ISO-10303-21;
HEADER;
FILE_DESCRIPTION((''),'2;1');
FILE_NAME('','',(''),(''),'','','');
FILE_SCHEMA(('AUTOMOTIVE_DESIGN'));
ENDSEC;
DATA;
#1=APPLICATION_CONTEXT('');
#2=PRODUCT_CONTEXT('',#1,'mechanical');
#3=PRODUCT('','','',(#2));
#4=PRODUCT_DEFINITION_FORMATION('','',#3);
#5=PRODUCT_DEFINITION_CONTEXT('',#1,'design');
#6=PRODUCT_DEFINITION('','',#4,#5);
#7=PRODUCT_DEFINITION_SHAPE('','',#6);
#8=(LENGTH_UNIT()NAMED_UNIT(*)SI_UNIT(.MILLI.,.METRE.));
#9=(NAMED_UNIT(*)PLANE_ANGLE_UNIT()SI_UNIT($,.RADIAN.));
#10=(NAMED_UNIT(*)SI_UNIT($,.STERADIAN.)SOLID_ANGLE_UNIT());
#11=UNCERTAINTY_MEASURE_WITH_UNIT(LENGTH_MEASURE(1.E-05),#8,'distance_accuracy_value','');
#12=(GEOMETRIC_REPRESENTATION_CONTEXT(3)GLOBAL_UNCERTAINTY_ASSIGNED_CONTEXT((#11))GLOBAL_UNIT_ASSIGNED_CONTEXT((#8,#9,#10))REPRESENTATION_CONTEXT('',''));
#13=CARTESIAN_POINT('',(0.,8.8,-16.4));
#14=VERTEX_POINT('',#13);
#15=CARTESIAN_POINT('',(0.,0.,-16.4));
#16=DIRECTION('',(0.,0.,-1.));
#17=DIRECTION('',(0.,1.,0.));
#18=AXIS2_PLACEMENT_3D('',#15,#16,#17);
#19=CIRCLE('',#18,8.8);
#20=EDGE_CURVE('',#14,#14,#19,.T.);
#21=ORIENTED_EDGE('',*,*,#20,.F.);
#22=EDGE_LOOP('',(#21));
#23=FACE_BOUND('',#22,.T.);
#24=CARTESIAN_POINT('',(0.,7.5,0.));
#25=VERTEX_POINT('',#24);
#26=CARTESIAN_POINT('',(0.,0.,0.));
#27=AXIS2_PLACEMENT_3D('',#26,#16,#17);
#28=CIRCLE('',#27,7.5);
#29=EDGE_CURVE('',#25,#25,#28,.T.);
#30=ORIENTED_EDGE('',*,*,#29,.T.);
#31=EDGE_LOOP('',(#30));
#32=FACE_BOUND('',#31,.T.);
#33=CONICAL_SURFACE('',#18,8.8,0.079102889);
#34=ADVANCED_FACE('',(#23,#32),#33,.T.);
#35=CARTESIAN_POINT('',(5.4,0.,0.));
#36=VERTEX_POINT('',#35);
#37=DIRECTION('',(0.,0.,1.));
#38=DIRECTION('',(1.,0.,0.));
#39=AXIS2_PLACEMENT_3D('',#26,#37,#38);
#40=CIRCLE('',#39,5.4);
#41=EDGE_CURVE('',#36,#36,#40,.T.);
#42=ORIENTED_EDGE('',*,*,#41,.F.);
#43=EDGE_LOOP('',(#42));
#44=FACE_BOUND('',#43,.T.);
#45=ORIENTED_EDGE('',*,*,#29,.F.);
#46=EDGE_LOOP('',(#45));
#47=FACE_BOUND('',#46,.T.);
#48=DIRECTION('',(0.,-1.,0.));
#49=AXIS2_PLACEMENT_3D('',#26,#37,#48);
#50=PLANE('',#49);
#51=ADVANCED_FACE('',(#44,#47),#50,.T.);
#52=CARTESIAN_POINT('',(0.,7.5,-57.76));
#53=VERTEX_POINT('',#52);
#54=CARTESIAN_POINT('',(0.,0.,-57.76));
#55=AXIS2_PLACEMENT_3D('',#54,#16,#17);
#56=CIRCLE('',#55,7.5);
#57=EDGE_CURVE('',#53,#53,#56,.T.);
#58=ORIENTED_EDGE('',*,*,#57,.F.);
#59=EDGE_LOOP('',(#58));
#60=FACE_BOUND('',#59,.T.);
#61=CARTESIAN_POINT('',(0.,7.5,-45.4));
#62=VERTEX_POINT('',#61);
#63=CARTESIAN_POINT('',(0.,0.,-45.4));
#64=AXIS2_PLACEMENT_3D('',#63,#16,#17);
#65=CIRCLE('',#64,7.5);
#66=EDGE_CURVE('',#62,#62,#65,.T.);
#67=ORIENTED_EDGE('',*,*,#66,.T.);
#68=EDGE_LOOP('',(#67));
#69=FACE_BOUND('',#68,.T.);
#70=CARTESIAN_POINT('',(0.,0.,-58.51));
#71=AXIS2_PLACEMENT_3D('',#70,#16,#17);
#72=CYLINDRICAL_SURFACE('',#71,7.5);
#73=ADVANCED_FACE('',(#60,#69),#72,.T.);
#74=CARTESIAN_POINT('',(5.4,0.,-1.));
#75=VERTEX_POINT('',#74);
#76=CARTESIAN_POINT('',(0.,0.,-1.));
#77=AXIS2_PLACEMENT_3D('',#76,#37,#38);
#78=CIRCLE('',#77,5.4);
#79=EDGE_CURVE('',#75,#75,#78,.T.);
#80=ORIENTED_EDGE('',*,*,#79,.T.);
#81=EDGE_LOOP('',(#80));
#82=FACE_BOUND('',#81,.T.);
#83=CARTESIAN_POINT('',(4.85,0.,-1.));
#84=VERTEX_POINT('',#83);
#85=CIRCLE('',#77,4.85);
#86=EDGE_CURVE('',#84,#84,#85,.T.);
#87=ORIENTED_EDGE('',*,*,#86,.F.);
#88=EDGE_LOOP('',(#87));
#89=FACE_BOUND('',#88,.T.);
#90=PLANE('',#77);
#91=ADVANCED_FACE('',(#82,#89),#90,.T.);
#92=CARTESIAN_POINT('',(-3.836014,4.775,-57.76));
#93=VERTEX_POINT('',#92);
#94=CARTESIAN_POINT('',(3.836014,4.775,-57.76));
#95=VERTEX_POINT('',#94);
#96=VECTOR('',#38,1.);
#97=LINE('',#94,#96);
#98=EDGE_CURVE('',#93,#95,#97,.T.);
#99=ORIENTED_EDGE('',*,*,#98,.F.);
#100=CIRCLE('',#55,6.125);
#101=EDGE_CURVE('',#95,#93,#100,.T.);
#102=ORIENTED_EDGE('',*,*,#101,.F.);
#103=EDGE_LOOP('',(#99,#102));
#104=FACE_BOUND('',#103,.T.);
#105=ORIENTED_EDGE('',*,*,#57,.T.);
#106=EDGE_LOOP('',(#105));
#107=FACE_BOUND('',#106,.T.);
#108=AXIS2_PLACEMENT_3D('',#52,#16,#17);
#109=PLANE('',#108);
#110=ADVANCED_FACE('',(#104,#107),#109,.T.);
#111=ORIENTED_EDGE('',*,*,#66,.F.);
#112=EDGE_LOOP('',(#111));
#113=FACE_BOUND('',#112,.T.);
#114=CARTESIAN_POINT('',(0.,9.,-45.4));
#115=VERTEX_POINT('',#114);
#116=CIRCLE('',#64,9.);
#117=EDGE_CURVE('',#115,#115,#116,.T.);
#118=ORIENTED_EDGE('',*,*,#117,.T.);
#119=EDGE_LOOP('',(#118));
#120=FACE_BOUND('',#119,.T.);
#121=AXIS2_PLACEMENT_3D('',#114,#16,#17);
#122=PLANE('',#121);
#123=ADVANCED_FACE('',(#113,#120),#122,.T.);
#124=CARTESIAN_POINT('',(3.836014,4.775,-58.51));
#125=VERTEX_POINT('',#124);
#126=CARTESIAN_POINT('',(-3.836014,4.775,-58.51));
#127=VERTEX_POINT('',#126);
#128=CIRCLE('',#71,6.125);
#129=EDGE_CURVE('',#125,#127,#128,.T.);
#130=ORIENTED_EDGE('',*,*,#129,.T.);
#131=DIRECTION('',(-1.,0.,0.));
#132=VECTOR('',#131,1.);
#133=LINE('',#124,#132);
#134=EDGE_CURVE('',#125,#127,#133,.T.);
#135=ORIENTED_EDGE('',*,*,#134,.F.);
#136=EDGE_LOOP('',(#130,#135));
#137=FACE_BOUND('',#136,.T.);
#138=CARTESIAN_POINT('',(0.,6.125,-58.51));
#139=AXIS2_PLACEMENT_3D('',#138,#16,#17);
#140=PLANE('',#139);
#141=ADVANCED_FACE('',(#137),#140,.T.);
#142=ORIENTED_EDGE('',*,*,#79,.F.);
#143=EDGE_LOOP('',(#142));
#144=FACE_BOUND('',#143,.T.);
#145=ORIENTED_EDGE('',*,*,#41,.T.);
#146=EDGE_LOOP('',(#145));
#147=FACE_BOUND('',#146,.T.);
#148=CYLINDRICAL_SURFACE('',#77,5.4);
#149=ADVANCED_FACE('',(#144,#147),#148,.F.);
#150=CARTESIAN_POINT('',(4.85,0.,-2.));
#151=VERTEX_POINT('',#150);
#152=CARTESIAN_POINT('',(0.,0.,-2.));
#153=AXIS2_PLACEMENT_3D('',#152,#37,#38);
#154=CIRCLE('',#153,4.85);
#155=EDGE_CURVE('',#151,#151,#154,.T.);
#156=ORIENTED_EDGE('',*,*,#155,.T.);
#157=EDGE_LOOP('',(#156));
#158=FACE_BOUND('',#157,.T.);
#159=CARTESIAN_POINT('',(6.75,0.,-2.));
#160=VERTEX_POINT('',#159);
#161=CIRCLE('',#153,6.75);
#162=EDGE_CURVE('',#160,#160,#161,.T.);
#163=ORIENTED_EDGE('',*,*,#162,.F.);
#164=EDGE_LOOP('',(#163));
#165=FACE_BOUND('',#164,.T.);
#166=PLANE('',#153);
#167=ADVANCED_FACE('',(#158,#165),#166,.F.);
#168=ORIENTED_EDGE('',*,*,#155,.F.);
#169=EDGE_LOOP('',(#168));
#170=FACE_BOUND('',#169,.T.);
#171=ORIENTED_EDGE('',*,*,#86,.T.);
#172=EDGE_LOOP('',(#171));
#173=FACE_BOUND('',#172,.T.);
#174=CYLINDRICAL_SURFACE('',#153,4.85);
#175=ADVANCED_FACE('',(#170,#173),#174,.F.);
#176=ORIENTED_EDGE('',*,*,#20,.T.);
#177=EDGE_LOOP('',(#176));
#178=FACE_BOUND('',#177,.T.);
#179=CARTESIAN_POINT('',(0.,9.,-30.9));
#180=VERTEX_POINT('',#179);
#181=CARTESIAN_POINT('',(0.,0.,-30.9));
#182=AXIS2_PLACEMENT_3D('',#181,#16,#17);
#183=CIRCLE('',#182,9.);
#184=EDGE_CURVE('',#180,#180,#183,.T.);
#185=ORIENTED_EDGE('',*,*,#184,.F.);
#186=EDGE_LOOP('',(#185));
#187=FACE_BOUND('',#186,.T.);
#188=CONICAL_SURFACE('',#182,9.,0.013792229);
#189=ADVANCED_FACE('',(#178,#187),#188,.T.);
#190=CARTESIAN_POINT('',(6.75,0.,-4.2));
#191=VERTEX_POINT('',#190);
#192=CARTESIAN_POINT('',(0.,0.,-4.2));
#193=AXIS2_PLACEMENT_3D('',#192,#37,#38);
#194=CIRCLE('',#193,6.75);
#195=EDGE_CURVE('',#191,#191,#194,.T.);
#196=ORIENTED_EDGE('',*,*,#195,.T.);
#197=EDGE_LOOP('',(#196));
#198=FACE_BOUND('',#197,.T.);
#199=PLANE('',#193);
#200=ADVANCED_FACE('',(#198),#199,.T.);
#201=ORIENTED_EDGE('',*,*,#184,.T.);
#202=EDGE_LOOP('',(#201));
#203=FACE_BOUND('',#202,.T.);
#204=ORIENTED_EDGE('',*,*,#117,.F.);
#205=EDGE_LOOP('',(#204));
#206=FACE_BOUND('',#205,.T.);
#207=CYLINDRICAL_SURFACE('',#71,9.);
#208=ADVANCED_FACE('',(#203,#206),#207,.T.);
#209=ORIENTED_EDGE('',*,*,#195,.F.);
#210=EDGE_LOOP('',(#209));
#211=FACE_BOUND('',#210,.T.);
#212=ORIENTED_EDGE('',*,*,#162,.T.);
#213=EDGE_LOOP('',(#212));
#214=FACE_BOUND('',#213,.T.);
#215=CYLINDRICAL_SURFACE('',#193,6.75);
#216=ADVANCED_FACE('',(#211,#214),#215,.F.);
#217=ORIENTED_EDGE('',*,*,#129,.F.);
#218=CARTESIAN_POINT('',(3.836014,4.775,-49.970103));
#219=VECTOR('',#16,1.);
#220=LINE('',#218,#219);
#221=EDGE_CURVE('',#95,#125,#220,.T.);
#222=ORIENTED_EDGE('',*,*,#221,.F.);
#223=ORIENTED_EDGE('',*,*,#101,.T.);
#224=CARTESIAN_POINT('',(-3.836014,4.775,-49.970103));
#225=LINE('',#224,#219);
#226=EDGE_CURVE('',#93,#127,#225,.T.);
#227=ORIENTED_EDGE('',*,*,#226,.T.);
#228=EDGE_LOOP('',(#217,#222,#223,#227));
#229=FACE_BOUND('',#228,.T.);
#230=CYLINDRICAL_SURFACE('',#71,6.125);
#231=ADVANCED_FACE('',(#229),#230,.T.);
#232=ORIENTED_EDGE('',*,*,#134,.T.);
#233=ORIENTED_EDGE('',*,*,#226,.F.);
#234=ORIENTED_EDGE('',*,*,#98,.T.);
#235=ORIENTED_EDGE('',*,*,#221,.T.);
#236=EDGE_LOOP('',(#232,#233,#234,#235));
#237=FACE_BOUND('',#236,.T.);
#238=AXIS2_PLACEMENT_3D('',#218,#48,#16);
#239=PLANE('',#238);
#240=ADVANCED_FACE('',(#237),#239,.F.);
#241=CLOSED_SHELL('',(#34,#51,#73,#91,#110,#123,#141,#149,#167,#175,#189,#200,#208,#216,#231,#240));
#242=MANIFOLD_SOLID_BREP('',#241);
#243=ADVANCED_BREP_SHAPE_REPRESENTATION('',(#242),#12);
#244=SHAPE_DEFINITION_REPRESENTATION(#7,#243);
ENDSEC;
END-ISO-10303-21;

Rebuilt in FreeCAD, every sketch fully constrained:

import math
import FreeCAD as App
import Part
import Sketcher
from FreeCAD import Vector

doc = App.newDocument("Part")
body = doc.addObject("PartDesign::Body", "Body")

sketch1 = body.newObject("Sketcher::SketchObject", "Sketch")
sketch1.AttachmentSupport = (doc.getObject("YZ_Plane"), [""])
sketch1.MapMode = "FlatFace"
sketch1.addGeometry(Part.LineSegment(Vector(7.5, 0, 0), Vector(0, 0, 0)), False)
sketch1.addGeometry(Part.LineSegment(Vector(0, 0, 0), Vector(0, -58.5, 0)), False)
sketch1.addGeometry(Part.LineSegment(Vector(0, -58.5, 0), Vector(6.1, -58.5, 0)), False)
sketch1.addGeometry(Part.LineSegment(Vector(6.1, -58.5, 0), Vector(6.1, -57.8, 0)), False)
sketch1.addGeometry(Part.LineSegment(Vector(6.1, -57.8, 0), Vector(7.5, -57.8, 0)), False)
sketch1.addGeometry(Part.LineSegment(Vector(7.5, -57.8, 0), Vector(7.5, -45.4, 0)), False)
sketch1.addGeometry(Part.LineSegment(Vector(7.5, -45.4, 0), Vector(9, -45.4, 0)), False)
sketch1.addGeometry(Part.LineSegment(Vector(9, -45.4, 0), Vector(9, -30.9, 0)), False)
sketch1.addGeometry(Part.LineSegment(Vector(9, -30.9, 0), Vector(8.8, -16.4, 0)), False)
sketch1.addGeometry(Part.LineSegment(Vector(8.8, -16.4, 0), Vector(7.5, 0, 0)), False)
sketch1.addConstraint(Sketcher.Constraint("Coincident", 0, 2, 1, 1))
sketch1.addConstraint(Sketcher.Constraint("Coincident", 1, 2, 2, 1))
sketch1.addConstraint(Sketcher.Constraint("Coincident", 2, 2, 3, 1))
sketch1.addConstraint(Sketcher.Constraint("Coincident", 3, 2, 4, 1))
sketch1.addConstraint(Sketcher.Constraint("Coincident", 4, 2, 5, 1))
sketch1.addConstraint(Sketcher.Constraint("Coincident", 5, 2, 6, 1))
sketch1.addConstraint(Sketcher.Constraint("Coincident", 6, 2, 7, 1))
sketch1.addConstraint(Sketcher.Constraint("Coincident", 7, 2, 8, 1))
sketch1.addConstraint(Sketcher.Constraint("Coincident", 8, 2, 9, 1))
sketch1.addConstraint(Sketcher.Constraint("Coincident", 9, 2, 0, 1))
sketch1.addConstraint(Sketcher.Constraint("Horizontal", 0))
sketch1.addConstraint(Sketcher.Constraint("Vertical", 1))
sketch1.addConstraint(Sketcher.Constraint("Horizontal", 2))
sketch1.addConstraint(Sketcher.Constraint("Vertical", 3))
sketch1.addConstraint(Sketcher.Constraint("Horizontal", 4))
sketch1.addConstraint(Sketcher.Constraint("Vertical", 5))
sketch1.addConstraint(Sketcher.Constraint("Horizontal", 6))
sketch1.addConstraint(Sketcher.Constraint("Vertical", 7))
sketch1.addConstraint(Sketcher.Constraint("Coincident", 0, 2, -1, 1))
sketch1.addConstraint(Sketcher.Constraint("Vertical", 5, 2, 9, 2))
sketch1.addConstraint(Sketcher.Constraint("DistanceX", 0, 2, 0, 1, 7.5))
sketch1.addConstraint(Sketcher.Constraint("DistanceX", 6, 1, 6, 2, 1.5))
sketch1.addConstraint(Sketcher.Constraint("DistanceY", 7, 1, 7, 2, 14.5))
sketch1.addConstraint(Sketcher.Constraint("DistanceY", 6, 2, 8, 2, 29.0))
sketch1.addConstraint(Sketcher.Constraint("DistanceY", 1, 2, 1, 1, 58.51))
sketch1.addConstraint(Sketcher.Constraint("DistanceY", 3, 1, 3, 2, 0.75))
sketch1.addConstraint(Sketcher.Constraint("DistanceY", 5, 1, 5, 2, 12.36))
sketch1.addConstraint(Sketcher.Constraint("DistanceX", -1, 1, 8, 2, 8.8))
sketch1.addConstraint(Sketcher.Constraint("DistanceX", 2, 1, 2, 2, 6.125))
revolution = body.newObject("PartDesign::Revolution", "Revolution")
revolution.Profile = sketch1
revolution.ReferenceAxis = (sketch1, ["V_Axis"])
revolution.Angle = 360

sketch2 = body.newObject("Sketcher::SketchObject", "Sketch001")
sketch2.AttachmentSupport = (doc.getObject("XY_Plane"), [""])
sketch2.MapMode = "FlatFace"
sketch2.AttachmentOffset = App.Placement(Vector(0, 0, -58.51), App.Rotation())
sketch2.addGeometry(Part.LineSegment(Vector(4, 5, 0), Vector(-4, 5, 0)), False)
sketch2.addGeometry(Part.ArcOfCircle(Part.Circle(Vector(0, 0, 0), Vector(0, 0, 1), 6), math.radians(51), math.radians(129)), False)
sketch2.addConstraint(Sketcher.Constraint("Coincident", 0, 1, 1, 1))
sketch2.addConstraint(Sketcher.Constraint("Coincident", 1, 2, 0, 2))
sketch2.addConstraint(Sketcher.Constraint("Horizontal", 0))
sketch2.addConstraint(Sketcher.Constraint("Coincident", 1, 3, -1, 1))
sketch2.addConstraint(Sketcher.Constraint("Radius", 1, 6.125))
sketch2.addConstraint(Sketcher.Constraint("DistanceY", -1, 1, 0, 1, 4.775))
pocket1 = body.newObject("PartDesign::Pocket", "Pocket")
pocket1.Profile = sketch2
pocket1.Length = 0.75
pocket1.Reversed = True

sketch3 = body.newObject("Sketcher::SketchObject", "Sketch002")
sketch3.AttachmentSupport = (doc.getObject("XY_Plane"), [""])
sketch3.MapMode = "FlatFace"
sketch3.addGeometry(Part.Circle(Vector(0, 0, 0), Vector(0, 0, 1), 5), False)
sketch3.addConstraint(Sketcher.Constraint("Coincident", 0, 3, -1, 1))
sketch3.addConstraint(Sketcher.Constraint("Diameter", 0, 10.8))
pocket2 = body.newObject("PartDesign::Pocket", "Pocket001")
pocket2.Profile = sketch3
pocket2.Length = 1

sketch4 = body.newObject("Sketcher::SketchObject", "Sketch003")
sketch4.AttachmentSupport = (doc.getObject("XY_Plane"), [""])
sketch4.MapMode = "FlatFace"
sketch4.AttachmentOffset = App.Placement(Vector(0, 0, -1), App.Rotation())
sketch4.addGeometry(Part.Circle(Vector(0, 0, 0), Vector(0, 0, 1), 4.8), False)
sketch4.addConstraint(Sketcher.Constraint("Coincident", 0, 3, -1, 1))
sketch4.addConstraint(Sketcher.Constraint("Diameter", 0, 9.7))
pocket3 = body.newObject("PartDesign::Pocket", "Pocket002")
pocket3.Profile = sketch4
pocket3.Length = 1

sketch5 = body.newObject("Sketcher::SketchObject", "Sketch004")
sketch5.AttachmentSupport = (doc.getObject("XY_Plane"), [""])
sketch5.MapMode = "FlatFace"
sketch5.AttachmentOffset = App.Placement(Vector(0, 0, -2), App.Rotation())
sketch5.addGeometry(Part.Circle(Vector(0, 0, 0), Vector(0, 0, 1), 7), False)
sketch5.addConstraint(Sketcher.Constraint("Coincident", 0, 3, -1, 1))
sketch5.addConstraint(Sketcher.Constraint("Diameter", 0, 13.5))
pocket4 = body.newObject("PartDesign::Pocket", "Pocket003")
pocket4.Profile = sketch5
pocket4.Length = 2.2

doc.recompute()
